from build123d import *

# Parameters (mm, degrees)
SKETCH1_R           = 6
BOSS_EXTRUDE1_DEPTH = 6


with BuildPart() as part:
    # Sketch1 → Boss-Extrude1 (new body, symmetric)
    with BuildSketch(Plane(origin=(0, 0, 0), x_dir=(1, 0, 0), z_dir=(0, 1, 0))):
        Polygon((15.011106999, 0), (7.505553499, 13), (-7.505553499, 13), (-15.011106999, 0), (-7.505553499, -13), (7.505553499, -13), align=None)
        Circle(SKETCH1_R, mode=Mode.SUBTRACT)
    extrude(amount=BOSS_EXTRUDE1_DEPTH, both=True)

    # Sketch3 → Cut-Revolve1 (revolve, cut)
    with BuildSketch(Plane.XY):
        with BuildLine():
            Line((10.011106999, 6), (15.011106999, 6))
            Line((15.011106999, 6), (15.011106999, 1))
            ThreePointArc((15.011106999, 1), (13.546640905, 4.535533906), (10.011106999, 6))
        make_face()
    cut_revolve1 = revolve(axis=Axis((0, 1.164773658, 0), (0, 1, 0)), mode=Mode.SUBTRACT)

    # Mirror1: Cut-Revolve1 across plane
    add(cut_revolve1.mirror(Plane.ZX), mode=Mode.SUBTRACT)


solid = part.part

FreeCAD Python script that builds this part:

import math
import FreeCAD as App
import Part
import Sketcher

V = App.Vector
Q = App.Units.Quantity

doc = App.newDocument("Part")
body = doc.addObject("PartDesign::Body", "Body")

# Sketch on XZ plane
sketch1 = doc.addObject("Sketcher::SketchObject", "Sketch")
body.addObject(sketch1)
sketch1.AttachmentSupport = (doc.XZ_Plane, [""])
sketch1.MapMode = "FlatFace"
sketch1.addGeometry(Part.LineSegment(V(15.011107, 0, 0), V(7.505553, -13, 0)), False)
sketch1.addGeometry(Part.LineSegment(V(7.505553, -13, 0), V(-7.505553, -13, 0)), False)
sketch1.addGeometry(Part.LineSegment(V(-7.505553, -13, 0), V(-15.011107, 0, 0)), False)
sketch1.addGeometry(Part.LineSegment(V(-15.011107, 0, 0), V(-7.505553, 13, 0)), False)
sketch1.addGeometry(Part.LineSegment(V(-7.505553, 13, 0), V(7.505553, 13, 0)), False)
sketch1.addGeometry(Part.LineSegment(V(7.505553, 13, 0), V(15.011107, 0, 0)), False)
sketch1.addGeometry(Part.Circle(V(0, 0, 0), V(0, 0, 1), 6), False)
sketch1.addConstraint(Sketcher.Constraint("Coincident", 0, 2, 1, 1))
sketch1.addConstraint(Sketcher.Constraint("Coincident", 1, 2, 2, 1))
sketch1.addConstraint(Sketcher.Constraint("Coincident", 2, 2, 3, 1))
sketch1.addConstraint(Sketcher.Constraint("Coincident", 3, 2, 4, 1))
sketch1.addConstraint(Sketcher.Constraint("Coincident", 4, 2, 5, 1))
sketch1.addConstraint(Sketcher.Constraint("Coincident", 5, 2, 0, 1))
sketch1.addConstraint(Sketcher.Constraint("Horizontal", 1))
sketch1.addConstraint(Sketcher.Constraint("Horizontal", 4))
sketch1.addConstraint(Sketcher.Constraint("Coincident", 6, 3, -1, 1))
sketch1.addConstraint(Sketcher.Constraint("Symmetric", 0, 2, 3, 2, -1, 1))
sketch1.addConstraint(Sketcher.Constraint("Symmetric", 2, 2, 5, 2, -1, 1))
sketch1.addConstraint(Sketcher.Constraint("PointOnObject", 2, 2, -1))
sketch1.addConstraint(Sketcher.Constraint("Parallel", 2, 5))
sketch1.addConstraint(Sketcher.Constraint("Vertical", 1, 2, 3, 2))
sketch1.addConstraint(Sketcher.Constraint("Diameter", 6, 12.0))
sketch1.addConstraint(Sketcher.Constraint("Angle", 0, Q("-120 deg")))
sketch1.addConstraint(Sketcher.Constraint("DistanceY", 0, 2, -1, 1, 13.0))
sketch1.addConstraint(Sketcher.Constraint("DistanceX", 1, 2, 1, 1, 15.011107))
pad1 = doc.addObject("PartDesign::Pad", "Pad")
body.addObject(pad1)
pad1.Profile = sketch1
pad1.Length = 12
pad1.Midplane = True

# Sketch on XY plane
sketch2 = doc.addObject("Sketcher::SketchObject", "Sketch001")
body.addObject(sketch2)
sketch2.AttachmentSupport = (doc.XY_Plane, [""])
sketch2.MapMode = "FlatFace"
sketch2.addGeometry(Part.LineSegment(V(15.011107, 6, 0), V(10.011107, 6, 0)), False)
sketch2.addGeometry(Part.ArcOfCircle(Part.Circle(V(10.011107, 1, 0), V(0, 0, 1), 5), math.radians(0), math.radians(90)), False)
sketch2.addGeometry(Part.LineSegment(V(15.011107, 1, 0), V(15.011107, 6, 0)), False)
sketch2.addConstraint(Sketcher.Constraint("Tangent", 0, 2, 1, 2))
sketch2.addConstraint(Sketcher.Constraint("Tangent", 1, 1, 2, 1))
sketch2.addConstraint(Sketcher.Constraint("Coincident", 2, 2, 0, 1))
sketch2.addConstraint(Sketcher.Constraint("Horizontal", 0))
sketch2.addConstraint(Sketcher.Constraint("Vertical", 2))
sketch2.addConstraint(Sketcher.Constraint("Radius", 1, 5.0))
sketch2.addConstraint(Sketcher.Constraint("DistanceY", -1, 1, 1, 3, 1.0))
sketch2.addConstraint(Sketcher.Constraint("DistanceX", -1, 1, 1, 3, 10.011107))
groove = doc.addObject("PartDesign::Groove", "Groove")
body.addObject(groove)
groove.Profile = sketch2
groove.ReferenceAxis = (sketch2, ["V_Axis"])
groove.Angle = 360
doc.recompute()

mirrored = doc.addObject("PartDesign::Mirrored", "Mirrored")
body.addObject(mirrored)
mirrored.Originals = [groove]
mirrored.MirrorPlane = (doc.XZ_Plane, [""])
body.Tip = mirrored

doc.recompute()
